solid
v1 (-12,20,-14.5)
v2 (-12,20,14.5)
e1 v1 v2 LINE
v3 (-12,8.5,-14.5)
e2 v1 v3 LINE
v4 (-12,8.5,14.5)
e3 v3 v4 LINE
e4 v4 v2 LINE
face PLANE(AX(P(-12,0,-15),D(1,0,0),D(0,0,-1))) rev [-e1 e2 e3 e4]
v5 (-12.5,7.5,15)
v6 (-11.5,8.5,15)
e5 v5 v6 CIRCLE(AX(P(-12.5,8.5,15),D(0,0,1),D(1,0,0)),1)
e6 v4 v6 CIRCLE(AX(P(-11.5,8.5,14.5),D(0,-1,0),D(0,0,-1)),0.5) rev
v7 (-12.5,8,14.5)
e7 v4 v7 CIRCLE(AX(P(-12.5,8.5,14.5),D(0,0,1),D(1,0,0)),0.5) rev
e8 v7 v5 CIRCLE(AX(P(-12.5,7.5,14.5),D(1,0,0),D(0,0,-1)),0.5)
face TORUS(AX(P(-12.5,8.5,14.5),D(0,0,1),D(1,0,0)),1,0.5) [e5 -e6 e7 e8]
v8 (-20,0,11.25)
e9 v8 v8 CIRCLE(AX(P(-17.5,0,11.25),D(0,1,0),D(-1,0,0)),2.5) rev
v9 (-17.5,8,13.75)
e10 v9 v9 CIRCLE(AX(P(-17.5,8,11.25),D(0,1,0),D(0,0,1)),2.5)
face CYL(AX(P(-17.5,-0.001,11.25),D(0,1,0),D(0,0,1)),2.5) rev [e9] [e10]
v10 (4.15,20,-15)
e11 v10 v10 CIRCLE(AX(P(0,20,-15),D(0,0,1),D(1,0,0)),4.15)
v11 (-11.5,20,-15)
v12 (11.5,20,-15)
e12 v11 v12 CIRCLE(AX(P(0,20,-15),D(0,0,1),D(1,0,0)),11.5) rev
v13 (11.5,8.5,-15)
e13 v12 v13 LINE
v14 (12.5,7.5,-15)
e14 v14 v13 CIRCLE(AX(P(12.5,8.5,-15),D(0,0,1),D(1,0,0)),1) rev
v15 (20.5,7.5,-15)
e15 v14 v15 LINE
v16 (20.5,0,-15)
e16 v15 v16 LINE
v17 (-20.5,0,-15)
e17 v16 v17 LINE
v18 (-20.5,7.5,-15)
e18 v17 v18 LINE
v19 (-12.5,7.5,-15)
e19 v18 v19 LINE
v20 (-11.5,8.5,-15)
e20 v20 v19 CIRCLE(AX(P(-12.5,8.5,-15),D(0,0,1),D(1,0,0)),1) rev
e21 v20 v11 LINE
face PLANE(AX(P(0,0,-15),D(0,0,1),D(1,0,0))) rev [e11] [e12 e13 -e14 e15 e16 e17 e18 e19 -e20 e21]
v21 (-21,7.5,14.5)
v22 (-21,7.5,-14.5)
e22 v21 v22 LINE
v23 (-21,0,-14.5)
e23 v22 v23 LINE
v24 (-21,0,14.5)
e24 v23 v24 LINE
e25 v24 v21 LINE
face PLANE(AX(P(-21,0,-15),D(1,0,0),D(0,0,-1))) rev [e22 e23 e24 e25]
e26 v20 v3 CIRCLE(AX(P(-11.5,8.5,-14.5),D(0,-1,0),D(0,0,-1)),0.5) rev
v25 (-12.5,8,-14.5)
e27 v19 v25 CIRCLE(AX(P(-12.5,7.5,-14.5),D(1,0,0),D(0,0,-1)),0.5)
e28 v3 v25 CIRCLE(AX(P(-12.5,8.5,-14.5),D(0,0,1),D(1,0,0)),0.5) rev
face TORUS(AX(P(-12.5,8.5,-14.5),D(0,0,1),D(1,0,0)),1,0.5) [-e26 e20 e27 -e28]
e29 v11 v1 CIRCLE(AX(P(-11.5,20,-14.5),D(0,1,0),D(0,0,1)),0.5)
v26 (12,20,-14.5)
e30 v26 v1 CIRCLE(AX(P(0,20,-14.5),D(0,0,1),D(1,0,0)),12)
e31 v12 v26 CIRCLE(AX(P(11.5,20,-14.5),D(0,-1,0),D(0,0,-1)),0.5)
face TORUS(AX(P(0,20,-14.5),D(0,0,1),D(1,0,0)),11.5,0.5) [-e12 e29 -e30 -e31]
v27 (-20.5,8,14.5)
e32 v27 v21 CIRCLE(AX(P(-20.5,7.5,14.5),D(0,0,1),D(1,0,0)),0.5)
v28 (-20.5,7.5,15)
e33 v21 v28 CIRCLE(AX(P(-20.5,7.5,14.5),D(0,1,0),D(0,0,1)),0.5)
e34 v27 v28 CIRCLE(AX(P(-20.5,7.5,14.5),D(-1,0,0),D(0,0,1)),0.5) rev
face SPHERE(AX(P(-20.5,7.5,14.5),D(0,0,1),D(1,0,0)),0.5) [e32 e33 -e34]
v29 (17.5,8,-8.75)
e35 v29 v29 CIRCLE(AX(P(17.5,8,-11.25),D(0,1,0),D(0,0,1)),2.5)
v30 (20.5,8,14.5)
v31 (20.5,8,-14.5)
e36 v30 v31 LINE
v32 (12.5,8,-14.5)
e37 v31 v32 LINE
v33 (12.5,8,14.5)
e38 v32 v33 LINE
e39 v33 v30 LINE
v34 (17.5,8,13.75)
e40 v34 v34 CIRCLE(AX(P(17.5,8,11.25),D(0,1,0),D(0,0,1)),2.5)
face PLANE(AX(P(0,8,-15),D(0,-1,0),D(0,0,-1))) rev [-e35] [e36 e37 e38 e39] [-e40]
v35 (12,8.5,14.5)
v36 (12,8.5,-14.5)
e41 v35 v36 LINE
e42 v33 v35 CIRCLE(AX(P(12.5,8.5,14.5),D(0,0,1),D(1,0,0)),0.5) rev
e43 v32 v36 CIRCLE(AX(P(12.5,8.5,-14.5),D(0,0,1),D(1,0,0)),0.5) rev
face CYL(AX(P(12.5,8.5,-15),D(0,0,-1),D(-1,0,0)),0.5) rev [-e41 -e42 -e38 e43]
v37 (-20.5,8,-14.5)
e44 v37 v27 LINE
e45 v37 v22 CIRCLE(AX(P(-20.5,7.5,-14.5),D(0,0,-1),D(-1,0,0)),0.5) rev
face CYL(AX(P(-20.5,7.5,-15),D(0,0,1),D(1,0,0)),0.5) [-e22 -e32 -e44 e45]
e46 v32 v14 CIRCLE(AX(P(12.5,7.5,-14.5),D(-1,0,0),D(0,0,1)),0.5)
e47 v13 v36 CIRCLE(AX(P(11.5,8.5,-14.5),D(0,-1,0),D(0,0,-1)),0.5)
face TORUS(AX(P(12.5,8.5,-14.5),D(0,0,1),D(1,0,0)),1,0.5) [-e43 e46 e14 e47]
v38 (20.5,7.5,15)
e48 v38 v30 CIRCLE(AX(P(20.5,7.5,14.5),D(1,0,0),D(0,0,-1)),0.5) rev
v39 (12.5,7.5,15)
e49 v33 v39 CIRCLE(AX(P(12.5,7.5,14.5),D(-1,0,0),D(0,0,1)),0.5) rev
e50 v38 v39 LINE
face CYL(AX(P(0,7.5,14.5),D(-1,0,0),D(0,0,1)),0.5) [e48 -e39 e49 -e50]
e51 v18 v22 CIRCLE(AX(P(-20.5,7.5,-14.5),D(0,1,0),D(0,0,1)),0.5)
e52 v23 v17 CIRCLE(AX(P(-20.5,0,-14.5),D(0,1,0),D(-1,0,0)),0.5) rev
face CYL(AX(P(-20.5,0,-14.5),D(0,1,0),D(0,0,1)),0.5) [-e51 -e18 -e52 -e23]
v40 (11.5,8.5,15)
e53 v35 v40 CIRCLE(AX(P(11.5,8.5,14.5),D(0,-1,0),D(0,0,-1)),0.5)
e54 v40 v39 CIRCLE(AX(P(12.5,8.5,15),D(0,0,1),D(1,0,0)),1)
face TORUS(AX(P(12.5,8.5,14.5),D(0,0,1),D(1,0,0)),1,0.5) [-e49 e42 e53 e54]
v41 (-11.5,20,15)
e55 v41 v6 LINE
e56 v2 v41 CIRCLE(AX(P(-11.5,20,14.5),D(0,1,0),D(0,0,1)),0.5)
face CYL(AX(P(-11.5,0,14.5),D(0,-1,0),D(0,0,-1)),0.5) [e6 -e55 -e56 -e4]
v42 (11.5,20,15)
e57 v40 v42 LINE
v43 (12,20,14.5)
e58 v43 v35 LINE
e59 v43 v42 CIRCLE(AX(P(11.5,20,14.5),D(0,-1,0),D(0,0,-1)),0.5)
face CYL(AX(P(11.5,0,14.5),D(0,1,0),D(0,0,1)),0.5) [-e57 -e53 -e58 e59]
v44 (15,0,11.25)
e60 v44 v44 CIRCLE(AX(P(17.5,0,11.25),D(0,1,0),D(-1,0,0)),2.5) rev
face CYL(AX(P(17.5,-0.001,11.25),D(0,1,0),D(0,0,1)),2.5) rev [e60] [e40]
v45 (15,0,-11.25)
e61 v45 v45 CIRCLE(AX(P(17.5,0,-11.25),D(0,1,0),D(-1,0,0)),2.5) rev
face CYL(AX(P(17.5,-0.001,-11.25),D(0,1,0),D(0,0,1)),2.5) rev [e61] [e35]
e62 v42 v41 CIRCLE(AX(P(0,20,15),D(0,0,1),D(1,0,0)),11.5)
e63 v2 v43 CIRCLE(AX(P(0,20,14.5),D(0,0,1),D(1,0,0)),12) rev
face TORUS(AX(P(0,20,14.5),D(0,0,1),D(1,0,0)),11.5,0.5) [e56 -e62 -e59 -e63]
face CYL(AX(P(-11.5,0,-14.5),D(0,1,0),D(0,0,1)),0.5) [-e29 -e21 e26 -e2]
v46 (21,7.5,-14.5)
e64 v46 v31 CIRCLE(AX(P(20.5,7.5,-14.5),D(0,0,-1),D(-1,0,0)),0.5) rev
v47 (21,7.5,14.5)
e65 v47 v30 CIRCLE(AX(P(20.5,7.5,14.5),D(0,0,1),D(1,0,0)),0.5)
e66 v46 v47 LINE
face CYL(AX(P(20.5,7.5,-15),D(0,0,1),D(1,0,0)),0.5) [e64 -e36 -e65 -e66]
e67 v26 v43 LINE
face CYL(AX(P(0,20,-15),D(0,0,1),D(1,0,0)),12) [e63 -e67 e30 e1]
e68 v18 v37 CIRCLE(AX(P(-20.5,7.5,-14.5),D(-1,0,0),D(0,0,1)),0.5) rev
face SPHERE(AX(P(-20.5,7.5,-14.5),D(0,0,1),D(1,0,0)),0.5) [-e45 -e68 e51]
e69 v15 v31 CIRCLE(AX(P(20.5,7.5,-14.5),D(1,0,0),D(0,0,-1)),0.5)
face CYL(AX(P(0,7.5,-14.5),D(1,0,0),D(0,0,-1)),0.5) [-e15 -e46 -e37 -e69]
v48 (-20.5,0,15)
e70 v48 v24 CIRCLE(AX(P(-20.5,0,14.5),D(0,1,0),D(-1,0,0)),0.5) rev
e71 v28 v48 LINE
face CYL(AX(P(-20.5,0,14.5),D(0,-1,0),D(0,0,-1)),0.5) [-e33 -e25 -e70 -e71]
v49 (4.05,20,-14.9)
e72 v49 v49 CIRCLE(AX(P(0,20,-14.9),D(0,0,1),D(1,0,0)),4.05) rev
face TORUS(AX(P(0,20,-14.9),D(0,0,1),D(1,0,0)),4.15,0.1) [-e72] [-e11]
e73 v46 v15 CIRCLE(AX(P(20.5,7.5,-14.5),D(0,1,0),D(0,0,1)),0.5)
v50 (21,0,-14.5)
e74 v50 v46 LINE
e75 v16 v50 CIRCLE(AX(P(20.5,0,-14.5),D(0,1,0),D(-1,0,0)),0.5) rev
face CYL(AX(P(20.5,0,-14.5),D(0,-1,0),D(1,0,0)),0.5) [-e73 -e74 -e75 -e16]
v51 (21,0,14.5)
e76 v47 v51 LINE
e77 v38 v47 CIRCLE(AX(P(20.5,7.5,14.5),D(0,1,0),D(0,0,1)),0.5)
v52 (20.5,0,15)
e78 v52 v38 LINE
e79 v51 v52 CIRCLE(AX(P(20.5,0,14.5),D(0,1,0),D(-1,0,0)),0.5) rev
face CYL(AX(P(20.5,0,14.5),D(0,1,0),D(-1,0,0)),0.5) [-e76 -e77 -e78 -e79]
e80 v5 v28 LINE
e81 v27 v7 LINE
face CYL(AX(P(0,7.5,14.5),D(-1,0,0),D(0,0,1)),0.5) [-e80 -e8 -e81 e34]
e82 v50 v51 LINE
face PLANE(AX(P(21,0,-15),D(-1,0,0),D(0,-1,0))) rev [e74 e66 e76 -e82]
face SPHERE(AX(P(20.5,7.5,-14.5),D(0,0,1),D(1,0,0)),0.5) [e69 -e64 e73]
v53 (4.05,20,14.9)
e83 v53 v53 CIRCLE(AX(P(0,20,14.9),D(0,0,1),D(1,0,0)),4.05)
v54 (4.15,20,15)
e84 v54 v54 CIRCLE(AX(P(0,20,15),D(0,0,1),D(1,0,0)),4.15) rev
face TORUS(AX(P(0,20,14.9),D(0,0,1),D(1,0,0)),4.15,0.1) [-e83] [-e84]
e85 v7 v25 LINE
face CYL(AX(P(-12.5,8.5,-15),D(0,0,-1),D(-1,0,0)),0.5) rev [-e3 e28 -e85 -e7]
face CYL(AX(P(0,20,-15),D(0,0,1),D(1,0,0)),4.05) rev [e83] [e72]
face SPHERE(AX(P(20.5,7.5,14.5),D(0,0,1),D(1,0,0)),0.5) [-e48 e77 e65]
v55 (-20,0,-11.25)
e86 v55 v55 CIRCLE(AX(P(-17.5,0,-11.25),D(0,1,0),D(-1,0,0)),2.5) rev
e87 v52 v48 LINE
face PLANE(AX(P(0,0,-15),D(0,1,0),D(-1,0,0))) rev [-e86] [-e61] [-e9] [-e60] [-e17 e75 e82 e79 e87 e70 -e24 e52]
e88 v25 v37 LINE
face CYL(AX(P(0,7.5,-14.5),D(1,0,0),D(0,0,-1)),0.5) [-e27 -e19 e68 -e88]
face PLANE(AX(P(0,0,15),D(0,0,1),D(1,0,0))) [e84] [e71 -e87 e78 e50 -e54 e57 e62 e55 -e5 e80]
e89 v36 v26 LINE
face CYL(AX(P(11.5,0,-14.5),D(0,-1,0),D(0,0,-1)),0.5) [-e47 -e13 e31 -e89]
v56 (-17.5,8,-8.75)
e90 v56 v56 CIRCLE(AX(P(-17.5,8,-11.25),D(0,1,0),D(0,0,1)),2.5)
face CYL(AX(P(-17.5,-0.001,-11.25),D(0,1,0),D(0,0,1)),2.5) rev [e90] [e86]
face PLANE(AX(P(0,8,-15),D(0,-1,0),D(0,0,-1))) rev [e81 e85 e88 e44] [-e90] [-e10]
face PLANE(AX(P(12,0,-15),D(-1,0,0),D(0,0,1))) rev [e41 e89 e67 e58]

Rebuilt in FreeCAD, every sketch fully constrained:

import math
import FreeCAD as App
import Part
import Sketcher

V = App.Vector
Q = App.Units.Quantity


def edges_at(feature, points):
    """Names of the edges that pass closest to the given points."""
    edges = feature.Shape.Edges
    near = lambda p: min(range(len(edges)), key=lambda i: edges[i].distToShape(Part.Vertex(*p))[0])
    return sorted({f"Edge{near(p) + 1}" for p in points})

doc = App.newDocument("Part")
body = doc.addObject("PartDesign::Body", "Body")

# Sketch on XY plane
sketch1 = doc.addObject("Sketcher::SketchObject", "Sketch")
body.addObject(sketch1)
sketch1.AttachmentSupport = (doc.XY_Plane, [""])
sketch1.MapMode = "FlatFace"
sketch1.addGeometry(Part.LineSegment(V(-21, 0, 0), V(21, 0, 0)), False)
sketch1.addGeometry(Part.LineSegment(V(21, 0, 0), V(21, 8, 0)), False)
sketch1.addGeometry(Part.LineSegment(V(21, 8, 0), V(12, 8, 0)), False)
sketch1.addGeometry(Part.LineSegment(V(12, 8, 0), V(12, 20, 0)), False)
sketch1.addGeometry(Part.ArcOfCircle(Part.Circle(V(0, 20, 0), V(0, 0, 1), 12), math.radians(0), math.radians(180)), False)
sketch1.addGeometry(Part.LineSegment(V(-12, 20, 0), V(-12, 8, 0)), False)
sketch1.addGeometry(Part.LineSegment(V(-12, 8, 0), V(-21, 8, 0)), False)
sketch1.addGeometry(Part.LineSegment(V(-21, 8, 0), V(-21, 0, 0)), False)
sketch1.addGeometry(Part.Circle(V(0, 20, 0), V(0, 0, 1), 4), False)
sketch1.addConstraint(Sketcher.Constraint("Coincident", 0, 2, 1, 1))
sketch1.addConstraint(Sketcher.Constraint("Coincident", 1, 2, 2, 1))
sketch1.addConstraint(Sketcher.Constraint("Coincident", 2, 2, 3, 1))
sketch1.addConstraint(Sketcher.Constraint("Tangent", 3, 2, 4, 1))
sketch1.addConstraint(Sketcher.Constraint("Tangent", 4, 2, 5, 1))
sketch1.addConstraint(Sketcher.Constraint("Coincident", 5, 2, 6, 1))
sketch1.addConstraint(Sketcher.Constraint("Coincident", 6, 2, 7, 1))
sketch1.addConstraint(Sketcher.Constraint("Coincident", 7, 2, 0, 1))
sketch1.addConstraint(Sketcher.Constraint("Horizontal", 0))
sketch1.addConstraint(Sketcher.Constraint("Vertical", 1))
sketch1.addConstraint(Sketcher.Constraint("Horizontal", 2))
sketch1.addConstraint(Sketcher.Constraint("Vertical", 3))
sketch1.addConstraint(Sketcher.Constraint("Vertical", 5))
sketch1.addConstraint(Sketcher.Constraint("Horizontal", 6))
sketch1.addConstraint(Sketcher.Constraint("Vertical", 7))
sketch1.addConstraint(Sketcher.Constraint("Coincident", 8, 3, 4, 3))
sketch1.addConstraint(Sketcher.Constraint("Symmetric", 0, 2, 7, 2, -1, 1))
sketch1.addConstraint(Sketcher.Constraint("Symmetric", 2, 2, 5, 2, -2))
sketch1.addConstraint(Sketcher.Constraint("Radius", 4, Q("12 mm")))
sketch1.addConstraint(Sketcher.Constraint("Diameter", 8, Q("8.1 mm")))
sketch1.addConstraint(Sketcher.Constraint("DistanceX", 0, 1, 0, 2, Q("42 mm")))
sketch1.addConstraint(Sketcher.Constraint("DistanceY", 1, 1, 1, 2, Q("8 mm")))
sketch1.addConstraint(Sketcher.Constraint("DistanceY", 3, 1, 3, 2, Q("12 mm")))
pad1 = doc.addObject("PartDesign::Pad", "Pad")
body.addObject(pad1)
pad1.Profile = sketch1
pad1.Length = 30
pad1.Midplane = True

# Sketch on XZ plane
sketch2 = doc.addObject("Sketcher::SketchObject", "Sketch001")
body.addObject(sketch2)
sketch2.AttachmentSupport = (doc.XZ_Plane, [""])
sketch2.MapMode = "FlatFace"
sketch2.AttachmentOffset = App.Placement(V(0, 0, -8), App.Rotation())
sketch2.addGeometry(Part.Circle(V(-17.5, -11.2, 0), V(0, 0, 1), 2.5), False)
sketch2.addConstraint(Sketcher.Constraint("Diameter", 0, Q("5 mm")))
sketch2.addConstraint(Sketcher.Constraint("DistanceX", 0, 3, -1, 1, Q("17.5 mm")))
sketch2.addConstraint(Sketcher.Constraint("DistanceY", 0, 3, -1, 1, Q("11.25 mm")))
pocket1 = doc.addObject("PartDesign::Pocket", "Pocket")
body.addObject(pocket1)
pocket1.Profile = sketch2
pocket1.Type = "UpToFirst"
pocket1.Reversed = True

# Sketch on XZ plane
sketch3 = doc.addObject("Sketcher::SketchObject", "Sketch002")
body.addObject(sketch3)
sketch3.AttachmentSupport = (doc.XZ_Plane, [""])
sketch3.MapMode = "FlatFace"
sketch3.AttachmentOffset = App.Placement(V(0, 0, -8), App.Rotation())
sketch3.addGeometry(Part.Circle(V(17.5, -11.2, 0), V(0, 0, 1), 2.5), False)
sketch3.addConstraint(Sketcher.Constraint("Diameter", 0, Q("5 mm")))
sketch3.addConstraint(Sketcher.Constraint("DistanceX", -1, 1, 0, 3, Q("17.5 mm")))
sketch3.addConstraint(Sketcher.Constraint("DistanceY", 0, 3, -1, 1, Q("11.25 mm")))
pocket2 = doc.addObject("PartDesign::Pocket", "Pocket001")
body.addObject(pocket2)
pocket2.Profile = sketch3
pocket2.Type = "UpToFirst"
pocket2.Reversed = True

# Sketch on XZ plane
sketch4 = doc.addObject("Sketcher::SketchObject", "Sketch003")
body.addObject(sketch4)
sketch4.AttachmentSupport = (doc.XZ_Plane, [""])
sketch4.MapMode = "FlatFace"
sketch4.AttachmentOffset = App.Placement(V(0, 0, -8), App.Rotation())
sketch4.addGeometry(Part.Circle(V(-17.5, 11.2, 0), V(0, 0, 1), 2.5), False)
sketch4.addConstraint(Sketcher.Constraint("Diameter", 0, Q("5 mm")))
sketch4.addConstraint(Sketcher.Constraint("DistanceX", 0, 3, -1, 1, Q("17.5 mm")))
sketch4.addConstraint(Sketcher.Constraint("DistanceY", -1, 1, 0, 3, Q("11.25 mm")))
pocket3 = doc.addObject("PartDesign::Pocket", "Pocket002")
body.addObject(pocket3)
pocket3.Profile = sketch4
pocket3.Type = "UpToFirst"
pocket3.Reversed = True

# Sketch on XZ plane
sketch5 = doc.addObject("Sketcher::SketchObject", "Sketch004")
body.addObject(sketch5)
sketch5.AttachmentSupport = (doc.XZ_Plane, [""])
sketch5.MapMode = "FlatFace"
sketch5.AttachmentOffset = App.Placement(V(0, 0, -8), App.Rotation())
sketch5.addGeometry(Part.Circle(V(17.5, 11.2, 0), V(0, 0, 1), 2.5), False)
sketch5.addConstraint(Sketcher.Constraint("Diameter", 0, Q("5 mm")))
sketch5.addConstraint(Sketcher.Constraint("DistanceX", -1, 1, 0, 3, Q("17.5 mm")))
sketch5.addConstraint(Sketcher.Constraint("DistanceY", -1, 1, 0, 3, Q("11.25 mm")))
pocket4 = doc.addObject("PartDesign::Pocket", "Pocket003")
body.addObject(pocket4)
pocket4.Profile = sketch5
pocket4.Type = "UpToFirst"
pocket4.Reversed = True
doc.recompute()

fillet = doc.addObject("PartDesign::Fillet", "Fillet")
body.addObject(fillet)
fillet.Base = (pocket4, edges_at(pocket4, [
    (12, 14, -15),
    (16.5, 8, 15),
    (21, 4, 15),
    (-21, 4, 15),
    (-16.5, 8, 15),
    (-12, 14, 15),
    (0, 32, 15),
    (12, 14, 15),
    (0, 32, -15),
    (12, 8, 0),
    (21, 8, 0),
    (-21, 8, 0),
    (-12, 8, 0),
    (-12, 14, -15),
    (-16.5, 8, -15),
    (-21, 4, -15),
    (21, 4, -15),
    (16.5, 8, -15),
]))
fillet.Radius = 0.5
doc.recompute()

fillet2 = doc.addObject("PartDesign::Fillet", "Fillet001")
body.addObject(fillet2)
fillet2.Base = (fillet, edges_at(fillet, [(-4.05, 20, 15), (-4.05, 20, -15)]))
fillet2.Radius = 0.1

doc.recompute()
